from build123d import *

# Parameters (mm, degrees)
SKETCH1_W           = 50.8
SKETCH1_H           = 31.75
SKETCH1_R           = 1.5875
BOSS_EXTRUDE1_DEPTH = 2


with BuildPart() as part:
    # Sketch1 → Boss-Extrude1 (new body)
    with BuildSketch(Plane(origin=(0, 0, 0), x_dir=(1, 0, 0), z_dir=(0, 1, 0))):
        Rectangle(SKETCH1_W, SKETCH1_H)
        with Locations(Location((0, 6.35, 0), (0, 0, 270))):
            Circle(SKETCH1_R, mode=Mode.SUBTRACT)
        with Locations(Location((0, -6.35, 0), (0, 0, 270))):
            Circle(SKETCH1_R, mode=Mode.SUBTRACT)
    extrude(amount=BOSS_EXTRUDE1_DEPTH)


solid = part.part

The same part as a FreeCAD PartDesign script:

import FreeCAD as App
import Part
import Sketcher
from FreeCAD import Vector
Q = App.Units.Quantity

doc = App.newDocument("Part")
body = doc.addObject("PartDesign::Body", "Body")

# Sketch on XZ plane
sketch1 = body.newObject("Sketcher::SketchObject", "Sketch")
sketch1.AttachmentSupport = (doc.getObject("XZ_Plane"), [""])
sketch1.MapMode = "FlatFace"
sketch1.addGeometry([
    Part.LineSegment(Vector(-25.4, -15.9, 0), Vector(-25.4, 15.9, 0)),  # 0
    Part.LineSegment(Vector(-25.4, 15.9, 0), Vector(25.4, 15.9, 0)),  # 1
    Part.LineSegment(Vector(25.4, 15.9, 0), Vector(25.4, -15.9, 0)),  # 2
    Part.LineSegment(Vector(25.4, -15.9, 0), Vector(-25.4, -15.9, 0)),  # 3
    Part.Circle(Vector(0, 6.3, 0), Vector(0, 0, 1), 1.6),  # 4
    Part.Circle(Vector(0, -6.3, 0), Vector(0, 0, 1), 1.6),  # 5
], False)
sketch1.addConstraint([
    Sketcher.Constraint("Coincident", 0, 2, 1, 1),
    Sketcher.Constraint("Coincident", 1, 2, 2, 1),
    Sketcher.Constraint("Coincident", 2, 2, 3, 1),
    Sketcher.Constraint("Coincident", 3, 2, 0, 1),
    Sketcher.Constraint("Vertical", 0),
    Sketcher.Constraint("Horizontal", 1),
    Sketcher.Constraint("Vertical", 2),
    Sketcher.Constraint("Horizontal", 3),
    Sketcher.Constraint("Equal", 4, 5),
    Sketcher.Constraint("Symmetric", 4, 3, 5, 3, -1, 1),
    Sketcher.Constraint("Symmetric", 0, 2, 2, 2, -1, 1),
    Sketcher.Constraint("PointOnObject", 4, 3, -2),
    Sketcher.Constraint("DistanceX", 1, 1, 1, 2, Q("2 in")),
    Sketcher.Constraint("Diameter", 4, Q("0.125 in")),
    Sketcher.Constraint("DistanceY", 0, 1, 0, 2, Q("1.25 in")),
    Sketcher.Constraint("DistanceY", 5, 3, 4, 3, Q("0.5 in")),
])
pad1 = body.newObject("PartDesign::Pad", "Pad")
pad1.Profile = sketch1
pad1.Length = 2
pad1.Reversed = True

doc.recompute()
